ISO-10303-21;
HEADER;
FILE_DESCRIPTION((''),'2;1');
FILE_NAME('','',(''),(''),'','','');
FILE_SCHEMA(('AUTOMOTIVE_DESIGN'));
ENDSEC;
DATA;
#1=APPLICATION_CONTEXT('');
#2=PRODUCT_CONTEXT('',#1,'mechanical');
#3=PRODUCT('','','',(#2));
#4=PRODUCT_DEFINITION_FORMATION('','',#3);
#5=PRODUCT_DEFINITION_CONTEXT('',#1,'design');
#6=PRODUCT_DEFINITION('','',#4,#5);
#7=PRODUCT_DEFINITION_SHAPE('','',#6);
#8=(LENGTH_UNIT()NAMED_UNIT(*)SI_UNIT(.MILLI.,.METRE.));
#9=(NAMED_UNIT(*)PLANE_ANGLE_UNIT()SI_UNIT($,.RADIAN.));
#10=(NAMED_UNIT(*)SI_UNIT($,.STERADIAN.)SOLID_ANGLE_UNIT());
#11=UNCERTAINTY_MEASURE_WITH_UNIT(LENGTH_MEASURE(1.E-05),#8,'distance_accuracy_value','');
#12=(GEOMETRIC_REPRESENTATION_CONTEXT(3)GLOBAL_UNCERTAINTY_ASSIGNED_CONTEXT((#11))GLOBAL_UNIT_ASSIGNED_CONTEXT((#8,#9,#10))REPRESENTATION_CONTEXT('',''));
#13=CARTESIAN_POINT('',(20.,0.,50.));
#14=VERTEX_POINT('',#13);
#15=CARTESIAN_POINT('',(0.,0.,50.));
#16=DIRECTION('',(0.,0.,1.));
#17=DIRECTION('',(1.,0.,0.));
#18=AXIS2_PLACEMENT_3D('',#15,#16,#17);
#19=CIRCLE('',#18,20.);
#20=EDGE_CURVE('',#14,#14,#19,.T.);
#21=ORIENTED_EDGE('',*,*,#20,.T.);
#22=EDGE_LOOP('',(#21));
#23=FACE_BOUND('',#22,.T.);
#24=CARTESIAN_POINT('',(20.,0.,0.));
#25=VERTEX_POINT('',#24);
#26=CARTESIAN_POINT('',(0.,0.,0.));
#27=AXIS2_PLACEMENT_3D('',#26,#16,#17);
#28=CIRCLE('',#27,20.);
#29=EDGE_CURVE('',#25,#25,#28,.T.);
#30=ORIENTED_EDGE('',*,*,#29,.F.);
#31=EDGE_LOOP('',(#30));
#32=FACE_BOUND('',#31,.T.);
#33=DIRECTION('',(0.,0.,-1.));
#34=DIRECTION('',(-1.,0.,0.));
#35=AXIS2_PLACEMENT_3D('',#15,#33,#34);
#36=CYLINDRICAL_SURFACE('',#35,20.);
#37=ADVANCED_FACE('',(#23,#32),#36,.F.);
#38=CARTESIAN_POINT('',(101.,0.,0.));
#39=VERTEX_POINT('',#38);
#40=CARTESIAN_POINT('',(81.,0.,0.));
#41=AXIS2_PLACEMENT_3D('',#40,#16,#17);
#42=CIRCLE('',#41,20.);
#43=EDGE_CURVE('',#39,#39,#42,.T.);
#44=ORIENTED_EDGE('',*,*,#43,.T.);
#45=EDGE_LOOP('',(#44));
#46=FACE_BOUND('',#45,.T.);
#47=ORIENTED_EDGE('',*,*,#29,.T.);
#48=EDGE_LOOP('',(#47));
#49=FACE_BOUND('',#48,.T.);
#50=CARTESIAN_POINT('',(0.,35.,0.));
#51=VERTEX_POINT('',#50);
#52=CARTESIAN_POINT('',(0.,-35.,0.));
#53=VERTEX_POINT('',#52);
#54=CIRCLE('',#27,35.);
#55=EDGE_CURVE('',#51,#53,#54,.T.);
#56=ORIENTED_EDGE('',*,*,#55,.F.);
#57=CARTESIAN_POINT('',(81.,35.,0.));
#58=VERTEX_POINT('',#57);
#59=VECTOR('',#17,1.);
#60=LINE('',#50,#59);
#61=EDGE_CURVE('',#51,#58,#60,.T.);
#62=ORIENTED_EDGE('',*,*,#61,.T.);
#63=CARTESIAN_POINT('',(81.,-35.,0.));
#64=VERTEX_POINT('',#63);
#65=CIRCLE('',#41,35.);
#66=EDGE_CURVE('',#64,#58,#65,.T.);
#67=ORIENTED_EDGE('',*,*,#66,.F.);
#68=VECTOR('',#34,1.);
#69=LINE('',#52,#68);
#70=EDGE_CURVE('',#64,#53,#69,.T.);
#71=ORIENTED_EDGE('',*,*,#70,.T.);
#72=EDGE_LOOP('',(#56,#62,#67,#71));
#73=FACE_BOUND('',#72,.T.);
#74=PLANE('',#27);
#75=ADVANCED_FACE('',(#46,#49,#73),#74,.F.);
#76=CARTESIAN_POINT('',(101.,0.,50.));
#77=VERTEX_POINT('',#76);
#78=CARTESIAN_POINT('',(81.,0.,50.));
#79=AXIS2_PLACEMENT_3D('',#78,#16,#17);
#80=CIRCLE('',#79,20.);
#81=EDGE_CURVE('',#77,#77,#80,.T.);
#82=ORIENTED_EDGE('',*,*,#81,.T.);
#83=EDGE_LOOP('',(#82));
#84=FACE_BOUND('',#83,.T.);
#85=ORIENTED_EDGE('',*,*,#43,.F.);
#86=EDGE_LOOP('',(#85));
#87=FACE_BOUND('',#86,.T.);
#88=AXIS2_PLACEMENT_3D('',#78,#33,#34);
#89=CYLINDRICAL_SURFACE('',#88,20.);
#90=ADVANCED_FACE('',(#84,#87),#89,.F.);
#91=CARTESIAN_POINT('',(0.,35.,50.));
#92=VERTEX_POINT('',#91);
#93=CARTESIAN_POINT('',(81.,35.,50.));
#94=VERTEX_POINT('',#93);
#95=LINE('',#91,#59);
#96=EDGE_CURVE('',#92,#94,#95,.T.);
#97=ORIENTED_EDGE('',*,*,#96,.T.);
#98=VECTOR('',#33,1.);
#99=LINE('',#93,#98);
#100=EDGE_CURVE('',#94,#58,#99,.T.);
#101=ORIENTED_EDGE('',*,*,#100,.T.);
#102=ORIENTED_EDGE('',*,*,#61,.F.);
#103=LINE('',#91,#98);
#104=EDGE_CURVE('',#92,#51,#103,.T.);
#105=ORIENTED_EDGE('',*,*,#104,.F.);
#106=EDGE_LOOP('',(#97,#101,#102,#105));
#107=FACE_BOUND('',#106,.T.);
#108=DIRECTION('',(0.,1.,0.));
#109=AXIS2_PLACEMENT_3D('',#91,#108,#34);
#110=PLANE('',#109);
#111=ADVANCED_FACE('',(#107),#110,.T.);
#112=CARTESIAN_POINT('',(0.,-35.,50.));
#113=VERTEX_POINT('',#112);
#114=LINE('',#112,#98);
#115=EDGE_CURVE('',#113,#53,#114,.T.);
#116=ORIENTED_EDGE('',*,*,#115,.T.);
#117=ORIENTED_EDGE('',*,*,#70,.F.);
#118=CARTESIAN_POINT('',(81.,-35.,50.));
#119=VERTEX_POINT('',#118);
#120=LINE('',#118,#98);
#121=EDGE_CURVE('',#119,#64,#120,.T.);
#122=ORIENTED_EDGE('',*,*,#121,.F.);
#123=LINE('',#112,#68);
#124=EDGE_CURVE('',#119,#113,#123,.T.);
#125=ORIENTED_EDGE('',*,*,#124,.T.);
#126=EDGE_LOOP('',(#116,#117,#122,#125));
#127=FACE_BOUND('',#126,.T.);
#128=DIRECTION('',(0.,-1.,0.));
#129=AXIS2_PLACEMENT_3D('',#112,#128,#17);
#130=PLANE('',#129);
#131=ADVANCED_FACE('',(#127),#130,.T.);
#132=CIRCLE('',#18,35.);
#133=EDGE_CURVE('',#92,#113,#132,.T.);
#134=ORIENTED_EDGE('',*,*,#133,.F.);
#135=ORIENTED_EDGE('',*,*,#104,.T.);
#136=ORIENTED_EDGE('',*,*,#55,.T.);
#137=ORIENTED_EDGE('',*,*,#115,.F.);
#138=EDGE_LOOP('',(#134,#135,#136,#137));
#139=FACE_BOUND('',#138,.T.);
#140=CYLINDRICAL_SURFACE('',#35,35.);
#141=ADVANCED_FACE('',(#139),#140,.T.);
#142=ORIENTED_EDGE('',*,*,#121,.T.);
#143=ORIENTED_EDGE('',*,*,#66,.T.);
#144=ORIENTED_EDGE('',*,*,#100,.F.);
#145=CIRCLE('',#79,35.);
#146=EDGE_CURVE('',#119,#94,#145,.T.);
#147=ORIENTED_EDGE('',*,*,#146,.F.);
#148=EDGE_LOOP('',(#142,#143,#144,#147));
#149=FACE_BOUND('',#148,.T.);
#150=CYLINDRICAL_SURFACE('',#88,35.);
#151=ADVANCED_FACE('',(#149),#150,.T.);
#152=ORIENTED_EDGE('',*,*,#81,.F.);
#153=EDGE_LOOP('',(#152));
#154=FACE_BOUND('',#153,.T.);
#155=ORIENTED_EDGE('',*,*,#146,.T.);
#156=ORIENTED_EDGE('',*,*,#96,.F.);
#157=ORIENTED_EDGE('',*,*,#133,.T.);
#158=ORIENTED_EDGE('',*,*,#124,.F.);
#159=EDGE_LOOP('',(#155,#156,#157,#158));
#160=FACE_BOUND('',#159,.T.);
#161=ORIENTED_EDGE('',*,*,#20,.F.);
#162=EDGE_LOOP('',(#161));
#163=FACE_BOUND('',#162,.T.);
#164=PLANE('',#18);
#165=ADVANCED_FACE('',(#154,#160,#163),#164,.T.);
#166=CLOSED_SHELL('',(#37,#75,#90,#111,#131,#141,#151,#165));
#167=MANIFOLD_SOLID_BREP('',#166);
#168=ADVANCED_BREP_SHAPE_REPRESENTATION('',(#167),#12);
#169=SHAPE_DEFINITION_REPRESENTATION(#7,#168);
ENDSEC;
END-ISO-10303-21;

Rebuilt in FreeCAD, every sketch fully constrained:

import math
import FreeCAD as App
import Part
import Sketcher
from FreeCAD import Vector

doc = App.newDocument("Part")
body = doc.addObject("PartDesign::Body", "Body")

sketch1 = body.newObject("Sketcher::SketchObject", "Sketch")
sketch1.AttachmentSupport = (doc.getObject("XY_Plane"), [""])
sketch1.MapMode = "FlatFace"
sketch1.addGeometry([
    Part.LineSegment(Vector(81, 35, 0), Vector(0, 35, 0)),
    Part.ArcOfCircle(Part.Circle(Vector(0, 0, 0), Vector(0, 0, 1), 35), math.radians(90), math.radians(270)),
    Part.LineSegment(Vector(0, -35, 0), Vector(81, -35, 0)),
    Part.ArcOfCircle(Part.Circle(Vector(81, 0, 0), Vector(0, 0, 1), 35), math.radians(-90), math.radians(90)),
    Part.Circle(Vector(81, 0, 0), Vector(0, 0, 1), 20),
    Part.Circle(Vector(0, 0, 0), Vector(0, 0, 1), 20),
], False)
sketch1.addConstraint([
    Sketcher.Constraint("Tangent", 0, 2, 1, 1),
    Sketcher.Constraint("Tangent", 1, 2, 2, 1),
    Sketcher.Constraint("Tangent", 2, 2, 3, 1),
    Sketcher.Constraint("Tangent", 3, 2, 0, 1),
    Sketcher.Constraint("Horizontal", 0),
    Sketcher.Constraint("Horizontal", 2),
    Sketcher.Constraint("Coincident", 1, 3, -1, 1),
    Sketcher.Constraint("Coincident", 5, 3, -1, 1),
    Sketcher.Constraint("Coincident", 4, 3, 3, 3),
    Sketcher.Constraint("Equal", 4, 5),
    Sketcher.Constraint("Diameter", 4, 40.0),
    Sketcher.Constraint("Radius", 1, 35.0),
    Sketcher.Constraint("DistanceX", 0, 2, 0, 1, 81.0),
])
pad1 = body.newObject("PartDesign::Pad", "Pad")
pad1.Profile = sketch1
pad1.Length = 50

doc.recompute()
